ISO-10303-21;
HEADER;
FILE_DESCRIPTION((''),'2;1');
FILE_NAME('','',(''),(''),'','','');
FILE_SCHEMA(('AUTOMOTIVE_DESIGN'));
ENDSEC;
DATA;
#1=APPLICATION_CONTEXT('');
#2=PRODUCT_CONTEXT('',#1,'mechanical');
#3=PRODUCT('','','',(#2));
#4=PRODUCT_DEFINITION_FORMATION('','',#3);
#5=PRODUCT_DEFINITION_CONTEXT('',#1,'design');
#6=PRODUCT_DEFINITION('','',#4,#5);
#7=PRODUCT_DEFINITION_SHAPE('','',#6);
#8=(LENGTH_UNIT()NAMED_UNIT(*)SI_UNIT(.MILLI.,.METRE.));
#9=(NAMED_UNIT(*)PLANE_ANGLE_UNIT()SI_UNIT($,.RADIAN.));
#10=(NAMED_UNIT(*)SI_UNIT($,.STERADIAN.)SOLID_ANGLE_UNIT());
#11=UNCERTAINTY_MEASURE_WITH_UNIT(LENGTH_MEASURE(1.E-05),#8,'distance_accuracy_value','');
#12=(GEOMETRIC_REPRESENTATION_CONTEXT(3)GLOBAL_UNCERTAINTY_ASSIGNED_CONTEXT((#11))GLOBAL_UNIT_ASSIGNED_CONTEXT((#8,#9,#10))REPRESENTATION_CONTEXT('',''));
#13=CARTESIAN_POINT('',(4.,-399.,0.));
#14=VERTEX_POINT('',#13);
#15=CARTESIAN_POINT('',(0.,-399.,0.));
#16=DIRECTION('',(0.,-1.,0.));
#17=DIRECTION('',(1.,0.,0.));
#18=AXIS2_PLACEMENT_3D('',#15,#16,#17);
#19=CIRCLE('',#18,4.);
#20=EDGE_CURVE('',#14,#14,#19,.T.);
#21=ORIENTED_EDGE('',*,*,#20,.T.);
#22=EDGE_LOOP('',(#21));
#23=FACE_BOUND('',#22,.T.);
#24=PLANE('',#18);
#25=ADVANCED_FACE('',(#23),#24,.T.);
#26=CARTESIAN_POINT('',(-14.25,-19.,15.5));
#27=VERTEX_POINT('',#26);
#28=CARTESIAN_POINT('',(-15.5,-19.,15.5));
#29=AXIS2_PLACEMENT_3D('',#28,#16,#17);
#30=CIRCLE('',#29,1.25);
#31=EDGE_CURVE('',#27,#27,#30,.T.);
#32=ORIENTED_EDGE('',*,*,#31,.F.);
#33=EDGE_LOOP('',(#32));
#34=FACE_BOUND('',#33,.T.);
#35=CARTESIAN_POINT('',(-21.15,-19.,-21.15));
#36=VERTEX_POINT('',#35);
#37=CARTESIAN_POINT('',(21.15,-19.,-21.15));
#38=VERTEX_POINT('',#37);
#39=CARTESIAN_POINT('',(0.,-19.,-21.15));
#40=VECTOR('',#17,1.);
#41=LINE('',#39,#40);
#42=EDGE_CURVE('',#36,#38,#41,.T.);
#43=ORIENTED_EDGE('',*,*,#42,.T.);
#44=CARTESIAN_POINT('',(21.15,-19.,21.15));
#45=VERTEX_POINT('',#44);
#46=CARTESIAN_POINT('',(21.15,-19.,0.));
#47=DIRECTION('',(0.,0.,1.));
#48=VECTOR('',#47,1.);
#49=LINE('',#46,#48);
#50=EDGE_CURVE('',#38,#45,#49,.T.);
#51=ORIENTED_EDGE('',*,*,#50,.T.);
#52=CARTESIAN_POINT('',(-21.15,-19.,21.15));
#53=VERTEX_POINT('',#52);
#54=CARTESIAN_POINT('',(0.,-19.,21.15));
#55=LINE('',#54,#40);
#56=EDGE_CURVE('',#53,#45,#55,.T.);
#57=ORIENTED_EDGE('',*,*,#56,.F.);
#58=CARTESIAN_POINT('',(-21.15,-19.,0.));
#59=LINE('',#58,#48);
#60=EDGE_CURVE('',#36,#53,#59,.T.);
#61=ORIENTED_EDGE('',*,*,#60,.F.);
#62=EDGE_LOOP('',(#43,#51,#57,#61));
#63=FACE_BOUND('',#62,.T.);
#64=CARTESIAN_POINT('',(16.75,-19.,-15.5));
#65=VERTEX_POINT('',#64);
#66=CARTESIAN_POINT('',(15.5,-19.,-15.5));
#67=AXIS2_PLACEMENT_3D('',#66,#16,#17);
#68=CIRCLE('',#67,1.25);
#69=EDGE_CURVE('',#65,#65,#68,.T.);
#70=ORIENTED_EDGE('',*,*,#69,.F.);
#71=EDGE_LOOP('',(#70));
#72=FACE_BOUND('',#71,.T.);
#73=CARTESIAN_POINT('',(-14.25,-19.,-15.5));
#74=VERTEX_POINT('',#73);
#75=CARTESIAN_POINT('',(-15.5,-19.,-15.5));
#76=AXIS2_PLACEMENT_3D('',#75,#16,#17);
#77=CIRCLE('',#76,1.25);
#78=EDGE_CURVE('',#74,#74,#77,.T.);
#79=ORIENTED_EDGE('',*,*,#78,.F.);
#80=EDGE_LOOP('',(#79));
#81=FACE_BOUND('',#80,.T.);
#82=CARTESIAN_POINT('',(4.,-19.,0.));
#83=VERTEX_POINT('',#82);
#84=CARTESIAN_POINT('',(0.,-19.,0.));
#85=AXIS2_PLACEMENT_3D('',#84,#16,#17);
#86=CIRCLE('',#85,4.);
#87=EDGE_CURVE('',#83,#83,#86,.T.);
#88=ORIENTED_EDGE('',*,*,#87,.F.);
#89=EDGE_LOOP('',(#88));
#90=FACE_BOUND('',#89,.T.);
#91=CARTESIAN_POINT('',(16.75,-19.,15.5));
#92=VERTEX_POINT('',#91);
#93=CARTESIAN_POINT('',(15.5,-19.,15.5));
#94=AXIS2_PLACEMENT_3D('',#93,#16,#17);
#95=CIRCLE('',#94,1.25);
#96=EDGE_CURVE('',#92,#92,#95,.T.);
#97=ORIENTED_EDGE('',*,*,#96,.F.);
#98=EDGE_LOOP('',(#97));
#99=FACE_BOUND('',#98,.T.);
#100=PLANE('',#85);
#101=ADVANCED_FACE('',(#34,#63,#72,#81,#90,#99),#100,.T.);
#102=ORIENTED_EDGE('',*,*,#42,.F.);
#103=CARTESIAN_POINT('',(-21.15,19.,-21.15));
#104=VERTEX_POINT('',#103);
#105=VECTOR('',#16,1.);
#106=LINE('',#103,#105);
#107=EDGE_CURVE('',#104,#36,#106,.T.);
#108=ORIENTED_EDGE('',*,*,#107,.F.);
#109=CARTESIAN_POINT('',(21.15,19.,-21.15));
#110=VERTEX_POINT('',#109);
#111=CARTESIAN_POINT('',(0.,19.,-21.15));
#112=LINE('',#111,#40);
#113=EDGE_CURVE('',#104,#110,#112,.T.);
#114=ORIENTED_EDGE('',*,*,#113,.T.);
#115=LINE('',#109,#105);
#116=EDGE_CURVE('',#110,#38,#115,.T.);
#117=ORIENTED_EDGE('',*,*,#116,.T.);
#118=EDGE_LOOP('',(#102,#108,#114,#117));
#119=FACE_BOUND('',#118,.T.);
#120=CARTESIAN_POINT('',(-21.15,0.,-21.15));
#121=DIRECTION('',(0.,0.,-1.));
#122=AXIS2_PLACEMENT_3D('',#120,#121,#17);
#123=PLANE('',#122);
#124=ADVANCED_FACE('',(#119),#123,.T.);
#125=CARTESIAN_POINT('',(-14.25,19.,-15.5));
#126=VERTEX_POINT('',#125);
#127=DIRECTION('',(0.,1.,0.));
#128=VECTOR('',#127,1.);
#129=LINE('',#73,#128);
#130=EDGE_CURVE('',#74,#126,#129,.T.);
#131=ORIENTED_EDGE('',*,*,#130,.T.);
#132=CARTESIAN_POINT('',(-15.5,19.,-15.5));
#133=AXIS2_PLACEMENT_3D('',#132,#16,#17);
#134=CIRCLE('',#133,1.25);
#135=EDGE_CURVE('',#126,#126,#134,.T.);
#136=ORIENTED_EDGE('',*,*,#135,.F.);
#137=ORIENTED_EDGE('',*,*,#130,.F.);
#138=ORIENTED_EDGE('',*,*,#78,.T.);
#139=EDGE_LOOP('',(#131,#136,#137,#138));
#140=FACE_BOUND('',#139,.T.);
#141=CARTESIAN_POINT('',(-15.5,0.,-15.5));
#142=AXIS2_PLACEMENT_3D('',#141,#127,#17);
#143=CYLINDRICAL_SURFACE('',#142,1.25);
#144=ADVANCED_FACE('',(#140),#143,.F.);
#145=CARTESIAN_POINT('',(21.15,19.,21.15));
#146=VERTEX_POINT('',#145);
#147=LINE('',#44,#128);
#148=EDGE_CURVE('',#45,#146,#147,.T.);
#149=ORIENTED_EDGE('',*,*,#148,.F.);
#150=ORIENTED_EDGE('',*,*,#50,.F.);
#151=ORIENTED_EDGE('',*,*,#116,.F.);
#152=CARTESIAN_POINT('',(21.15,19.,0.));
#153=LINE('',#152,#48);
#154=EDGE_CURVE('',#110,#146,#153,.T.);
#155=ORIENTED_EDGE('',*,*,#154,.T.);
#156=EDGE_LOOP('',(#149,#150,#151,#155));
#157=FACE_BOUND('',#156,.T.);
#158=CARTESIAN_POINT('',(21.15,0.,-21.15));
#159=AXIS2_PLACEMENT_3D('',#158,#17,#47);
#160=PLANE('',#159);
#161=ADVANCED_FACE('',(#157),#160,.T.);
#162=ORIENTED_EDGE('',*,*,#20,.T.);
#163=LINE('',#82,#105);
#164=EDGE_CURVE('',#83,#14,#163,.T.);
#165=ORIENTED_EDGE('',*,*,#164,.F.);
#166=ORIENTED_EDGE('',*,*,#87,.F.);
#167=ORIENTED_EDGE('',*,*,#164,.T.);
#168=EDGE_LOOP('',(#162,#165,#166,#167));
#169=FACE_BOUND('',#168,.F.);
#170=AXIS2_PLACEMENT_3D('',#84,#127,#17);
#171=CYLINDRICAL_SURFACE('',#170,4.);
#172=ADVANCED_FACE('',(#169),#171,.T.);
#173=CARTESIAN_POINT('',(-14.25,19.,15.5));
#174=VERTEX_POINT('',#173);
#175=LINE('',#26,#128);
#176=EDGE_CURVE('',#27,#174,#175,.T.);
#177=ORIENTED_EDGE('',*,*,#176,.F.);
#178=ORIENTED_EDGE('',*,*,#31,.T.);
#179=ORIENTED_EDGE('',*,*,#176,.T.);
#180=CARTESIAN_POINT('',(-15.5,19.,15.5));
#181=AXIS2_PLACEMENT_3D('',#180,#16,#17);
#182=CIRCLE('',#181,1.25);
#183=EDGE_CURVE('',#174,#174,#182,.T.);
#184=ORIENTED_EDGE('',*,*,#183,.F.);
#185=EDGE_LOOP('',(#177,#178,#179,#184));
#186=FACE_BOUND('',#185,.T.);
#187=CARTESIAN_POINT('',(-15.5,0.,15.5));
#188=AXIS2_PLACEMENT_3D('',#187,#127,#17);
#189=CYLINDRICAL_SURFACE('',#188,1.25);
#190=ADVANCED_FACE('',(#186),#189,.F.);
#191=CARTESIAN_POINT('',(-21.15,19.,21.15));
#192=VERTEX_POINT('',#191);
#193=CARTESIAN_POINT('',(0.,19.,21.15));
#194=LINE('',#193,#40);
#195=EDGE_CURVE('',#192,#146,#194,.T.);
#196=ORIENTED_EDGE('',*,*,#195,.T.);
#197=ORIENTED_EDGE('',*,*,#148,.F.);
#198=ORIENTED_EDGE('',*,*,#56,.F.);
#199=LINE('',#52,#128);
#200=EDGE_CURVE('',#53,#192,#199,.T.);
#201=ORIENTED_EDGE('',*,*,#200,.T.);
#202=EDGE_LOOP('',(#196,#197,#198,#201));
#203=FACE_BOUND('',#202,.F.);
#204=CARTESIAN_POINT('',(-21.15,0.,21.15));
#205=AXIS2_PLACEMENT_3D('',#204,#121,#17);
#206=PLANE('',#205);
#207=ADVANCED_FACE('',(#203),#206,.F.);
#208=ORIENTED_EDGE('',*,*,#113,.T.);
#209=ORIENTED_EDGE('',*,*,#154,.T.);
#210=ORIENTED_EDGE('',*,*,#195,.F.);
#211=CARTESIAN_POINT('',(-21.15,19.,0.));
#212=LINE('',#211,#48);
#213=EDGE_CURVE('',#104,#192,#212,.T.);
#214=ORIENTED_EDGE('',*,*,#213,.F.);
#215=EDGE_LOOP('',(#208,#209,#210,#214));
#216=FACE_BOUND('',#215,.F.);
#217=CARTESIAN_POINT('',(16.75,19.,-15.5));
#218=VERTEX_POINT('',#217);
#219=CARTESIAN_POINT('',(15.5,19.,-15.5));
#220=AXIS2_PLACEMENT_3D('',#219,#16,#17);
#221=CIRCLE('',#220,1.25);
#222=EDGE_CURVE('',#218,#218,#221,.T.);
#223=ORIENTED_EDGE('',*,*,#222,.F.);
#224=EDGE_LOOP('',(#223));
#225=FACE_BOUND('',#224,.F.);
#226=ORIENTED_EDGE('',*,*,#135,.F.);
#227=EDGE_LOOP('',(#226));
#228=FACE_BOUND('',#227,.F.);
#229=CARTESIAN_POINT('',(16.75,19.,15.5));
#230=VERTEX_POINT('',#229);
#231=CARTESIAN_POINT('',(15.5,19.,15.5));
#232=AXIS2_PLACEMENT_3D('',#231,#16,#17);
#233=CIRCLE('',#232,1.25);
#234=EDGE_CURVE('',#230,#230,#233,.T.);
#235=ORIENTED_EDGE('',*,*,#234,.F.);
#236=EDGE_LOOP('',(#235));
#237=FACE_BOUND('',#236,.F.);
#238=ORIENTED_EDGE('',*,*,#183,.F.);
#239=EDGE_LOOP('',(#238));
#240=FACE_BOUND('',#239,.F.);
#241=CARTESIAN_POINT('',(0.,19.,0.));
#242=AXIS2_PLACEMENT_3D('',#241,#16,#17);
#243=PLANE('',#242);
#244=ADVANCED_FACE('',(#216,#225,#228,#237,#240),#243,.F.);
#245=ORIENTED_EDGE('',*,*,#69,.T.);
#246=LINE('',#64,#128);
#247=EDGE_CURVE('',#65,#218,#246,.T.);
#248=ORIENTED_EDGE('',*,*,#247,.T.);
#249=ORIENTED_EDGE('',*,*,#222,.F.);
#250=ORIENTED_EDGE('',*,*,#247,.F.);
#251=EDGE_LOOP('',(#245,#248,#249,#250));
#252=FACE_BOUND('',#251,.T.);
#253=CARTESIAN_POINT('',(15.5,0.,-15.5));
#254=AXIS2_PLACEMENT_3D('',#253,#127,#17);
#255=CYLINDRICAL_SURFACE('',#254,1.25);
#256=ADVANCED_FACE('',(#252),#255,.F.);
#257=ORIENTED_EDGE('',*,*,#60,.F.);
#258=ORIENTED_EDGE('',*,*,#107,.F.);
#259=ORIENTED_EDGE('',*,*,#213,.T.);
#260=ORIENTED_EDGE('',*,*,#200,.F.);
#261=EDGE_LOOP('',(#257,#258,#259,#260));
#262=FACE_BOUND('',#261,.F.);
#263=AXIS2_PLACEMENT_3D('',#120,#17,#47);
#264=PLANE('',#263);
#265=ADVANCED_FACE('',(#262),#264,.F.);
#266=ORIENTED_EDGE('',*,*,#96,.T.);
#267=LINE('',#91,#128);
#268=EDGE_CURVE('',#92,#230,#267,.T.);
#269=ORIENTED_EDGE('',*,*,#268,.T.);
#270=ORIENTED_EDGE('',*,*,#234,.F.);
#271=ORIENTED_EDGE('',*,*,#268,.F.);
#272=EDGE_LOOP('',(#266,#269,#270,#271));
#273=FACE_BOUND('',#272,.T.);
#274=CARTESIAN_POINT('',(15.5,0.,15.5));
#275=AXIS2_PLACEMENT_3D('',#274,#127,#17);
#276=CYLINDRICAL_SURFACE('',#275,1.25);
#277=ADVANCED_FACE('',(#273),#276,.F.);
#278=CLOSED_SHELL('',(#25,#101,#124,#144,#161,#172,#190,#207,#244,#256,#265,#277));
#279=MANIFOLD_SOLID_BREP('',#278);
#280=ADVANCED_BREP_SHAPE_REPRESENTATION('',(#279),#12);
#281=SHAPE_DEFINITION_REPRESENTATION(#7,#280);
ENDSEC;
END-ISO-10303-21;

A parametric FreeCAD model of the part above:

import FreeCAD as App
import Part
import Sketcher
from FreeCAD import Vector
Q = App.Units.Quantity

doc = App.newDocument("Part")
body = doc.addObject("PartDesign::Body", "Body")

# Sketch on XZ plane
sketch1 = body.newObject("Sketcher::SketchObject", "Sketch")
sketch1.AttachmentSupport = (doc.getObject("XZ_Plane"), [""])
sketch1.MapMode = "FlatFace"
sketch1.addGeometry([
    Part.LineSegment(Vector(-21.1, 21.1, 0), Vector(-21.1, -21.1, 0)),  # 0
    Part.LineSegment(Vector(-21.1, -21.1, 0), Vector(21.1, -21.1, 0)),  # 1
    Part.LineSegment(Vector(21.1, -21.1, 0), Vector(21.1, 21.1, 0)),  # 2
    Part.LineSegment(Vector(21.1, 21.1, 0), Vector(-21.1, 21.1, 0)),  # 3
    Part.Circle(Vector(-15.5, -15.5, 0), Vector(0, 0, 1), 1.2),  # 4
    Part.Circle(Vector(15.5, -15.5, 0), Vector(0, 0, 1), 1.2),  # 5
    Part.Circle(Vector(-15.5, 15.5, 0), Vector(0, 0, 1), 1.2),  # 6
    Part.Circle(Vector(15.5, 15.5, 0), Vector(0, 0, 1), 1.2),  # 7
], False)
sketch1.addConstraint([
    Sketcher.Constraint("Coincident", 0, 2, 1, 1),
    Sketcher.Constraint("Coincident", 1, 2, 2, 1),
    Sketcher.Constraint("Coincident", 2, 2, 3, 1),
    Sketcher.Constraint("Coincident", 3, 2, 0, 1),
    Sketcher.Constraint("Vertical", 0),
    Sketcher.Constraint("Horizontal", 1),
    Sketcher.Constraint("Vertical", 2),
    Sketcher.Constraint("Horizontal", 3),
    Sketcher.Constraint("Equal", 4, 5),
    Sketcher.Constraint("Equal", 5, 6),
    Sketcher.Constraint("Equal", 6, 7),
    Sketcher.Constraint("Symmetric", 5, 3, 6, 3, -1, 1),
    Sketcher.Constraint("Symmetric", 4, 3, 7, 3, -1, 1),
    Sketcher.Constraint("Symmetric", 0, 2, 2, 2, -1, 1),
    Sketcher.Constraint("Symmetric", 4, 3, 5, 3, -2),
    Sketcher.Constraint("Equal", 3, 0),
    Sketcher.Constraint("Diameter", 4, Q("2.5 mm")),
    Sketcher.Constraint("DistanceX", 1, 1, 1, 2, Q("42.3 mm")),
    Sketcher.Constraint("DistanceX", 4, 3, 5, 3, Q("31 mm")),
    Sketcher.Constraint("DistanceY", 4, 3, 6, 3, Q("31 mm")),
])
pad1 = body.newObject("PartDesign::Pad", "Pad")
pad1.Profile = sketch1
pad1.Length = 38
pad1.Midplane = True

# Sketch on XZ plane
sketch2 = body.newObject("Sketcher::SketchObject", "Sketch001")
sketch2.AttachmentSupport = (doc.getObject("XZ_Plane"), [""])
sketch2.MapMode = "FlatFace"
sketch2.AttachmentOffset = App.Placement(Vector(0, 0, 19), App.Rotation())
sketch2.addGeometry(Part.Circle(Vector(0, 0, 0), Vector(0, 0, 1), 4), False)
sketch2.addConstraint([
    Sketcher.Constraint("Coincident", 0, 3, -1, 1),
    Sketcher.Constraint("Diameter", 0, Q("8 mm")),
])
pad2 = body.newObject("PartDesign::Pad", "Pad001")
pad2.Profile = sketch2
pad2.Length = 380

doc.recompute()
